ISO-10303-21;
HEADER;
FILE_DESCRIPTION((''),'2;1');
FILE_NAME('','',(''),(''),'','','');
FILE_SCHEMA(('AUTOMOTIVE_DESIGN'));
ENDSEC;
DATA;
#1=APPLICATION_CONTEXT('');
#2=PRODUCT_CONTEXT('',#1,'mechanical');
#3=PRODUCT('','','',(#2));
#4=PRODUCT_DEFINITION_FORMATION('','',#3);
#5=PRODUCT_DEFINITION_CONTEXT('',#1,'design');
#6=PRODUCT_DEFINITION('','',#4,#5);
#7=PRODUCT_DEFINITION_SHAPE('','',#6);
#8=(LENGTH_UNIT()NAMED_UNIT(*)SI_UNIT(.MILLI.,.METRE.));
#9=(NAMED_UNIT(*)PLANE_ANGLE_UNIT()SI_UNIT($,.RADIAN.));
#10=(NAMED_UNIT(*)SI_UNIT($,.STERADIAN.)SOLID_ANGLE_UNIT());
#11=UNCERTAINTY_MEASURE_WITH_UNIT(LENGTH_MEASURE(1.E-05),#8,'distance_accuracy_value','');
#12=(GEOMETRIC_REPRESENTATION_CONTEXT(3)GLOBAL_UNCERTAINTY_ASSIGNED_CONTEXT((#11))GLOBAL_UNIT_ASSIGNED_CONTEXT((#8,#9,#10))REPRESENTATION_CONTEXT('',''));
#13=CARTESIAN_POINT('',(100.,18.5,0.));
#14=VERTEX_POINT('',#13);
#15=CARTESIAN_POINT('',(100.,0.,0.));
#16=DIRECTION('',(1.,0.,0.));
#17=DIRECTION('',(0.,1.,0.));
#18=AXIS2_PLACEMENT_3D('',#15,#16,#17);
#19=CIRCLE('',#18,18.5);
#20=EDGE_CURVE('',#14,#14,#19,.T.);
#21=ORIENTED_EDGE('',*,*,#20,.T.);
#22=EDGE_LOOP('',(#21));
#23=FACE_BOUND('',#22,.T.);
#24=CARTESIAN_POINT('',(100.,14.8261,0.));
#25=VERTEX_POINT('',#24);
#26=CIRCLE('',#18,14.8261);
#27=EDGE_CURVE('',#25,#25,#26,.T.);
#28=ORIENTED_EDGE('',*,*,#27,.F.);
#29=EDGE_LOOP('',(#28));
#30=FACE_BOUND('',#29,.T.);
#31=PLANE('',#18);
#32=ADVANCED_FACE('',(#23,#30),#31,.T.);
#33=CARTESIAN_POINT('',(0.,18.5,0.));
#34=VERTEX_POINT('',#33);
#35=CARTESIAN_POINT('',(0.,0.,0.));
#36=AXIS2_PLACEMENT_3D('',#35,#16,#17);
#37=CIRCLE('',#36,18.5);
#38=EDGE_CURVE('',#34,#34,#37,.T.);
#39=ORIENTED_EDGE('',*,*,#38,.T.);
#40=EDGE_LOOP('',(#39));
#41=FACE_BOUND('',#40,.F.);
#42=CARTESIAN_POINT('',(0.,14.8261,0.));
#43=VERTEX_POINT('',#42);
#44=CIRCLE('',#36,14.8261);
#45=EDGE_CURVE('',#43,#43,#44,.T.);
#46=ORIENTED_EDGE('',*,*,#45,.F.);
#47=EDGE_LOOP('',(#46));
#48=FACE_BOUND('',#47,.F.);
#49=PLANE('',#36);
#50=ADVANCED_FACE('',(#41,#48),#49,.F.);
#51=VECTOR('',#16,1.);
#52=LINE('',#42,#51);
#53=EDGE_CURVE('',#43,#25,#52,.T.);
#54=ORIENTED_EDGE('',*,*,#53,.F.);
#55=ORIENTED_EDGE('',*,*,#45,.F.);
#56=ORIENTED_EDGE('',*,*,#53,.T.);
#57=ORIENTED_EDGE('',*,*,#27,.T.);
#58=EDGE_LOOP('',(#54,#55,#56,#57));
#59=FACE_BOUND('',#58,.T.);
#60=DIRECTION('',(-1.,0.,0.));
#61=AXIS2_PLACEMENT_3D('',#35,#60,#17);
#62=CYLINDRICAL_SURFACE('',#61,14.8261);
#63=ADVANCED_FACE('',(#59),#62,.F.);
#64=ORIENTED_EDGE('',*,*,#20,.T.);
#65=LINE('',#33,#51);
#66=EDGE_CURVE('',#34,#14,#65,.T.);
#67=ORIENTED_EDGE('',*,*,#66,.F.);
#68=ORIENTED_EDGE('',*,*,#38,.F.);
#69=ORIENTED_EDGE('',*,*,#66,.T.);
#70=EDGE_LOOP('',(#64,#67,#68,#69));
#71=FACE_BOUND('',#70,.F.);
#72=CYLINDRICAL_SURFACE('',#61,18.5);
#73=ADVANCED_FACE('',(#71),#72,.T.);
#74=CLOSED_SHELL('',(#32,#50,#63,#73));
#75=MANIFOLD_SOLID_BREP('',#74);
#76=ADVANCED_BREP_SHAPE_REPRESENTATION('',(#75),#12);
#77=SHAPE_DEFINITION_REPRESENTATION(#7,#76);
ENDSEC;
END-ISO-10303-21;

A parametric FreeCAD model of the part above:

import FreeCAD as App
import Part
import Sketcher

V = App.Vector
Q = App.Units.Quantity

doc = App.newDocument("Part")
body = doc.addObject("PartDesign::Body", "Body")

# Sketch on YZ plane
sketch1 = body.newObject("Sketcher::SketchObject", "Sketch")
sketch1.AttachmentSupport = (doc.getObject("YZ_Plane"), [""])
sketch1.MapMode = "FlatFace"
sketch1.addGeometry([
    Part.Circle(V(0, 0, 0), V(0, 0, 1), 18),
    Part.Circle(V(0, 0, 0), V(0, 0, 1), 15),
], False)
sketch1.addConstraint([
    Sketcher.Constraint("Coincident", 0, 3, -1, 1),
    Sketcher.Constraint("Coincident", 1, 3, -1, 1),
    Sketcher.Constraint("Diameter", 0, Q("1.4567 in")),
    Sketcher.Constraint("Diameter", 1, Q("1.1674 in")),
])
pad1 = body.newObject("PartDesign::Pad", "Pad")
pad1.Profile = sketch1
pad1.Length = Q("3.9370079 in")

doc.recompute()
